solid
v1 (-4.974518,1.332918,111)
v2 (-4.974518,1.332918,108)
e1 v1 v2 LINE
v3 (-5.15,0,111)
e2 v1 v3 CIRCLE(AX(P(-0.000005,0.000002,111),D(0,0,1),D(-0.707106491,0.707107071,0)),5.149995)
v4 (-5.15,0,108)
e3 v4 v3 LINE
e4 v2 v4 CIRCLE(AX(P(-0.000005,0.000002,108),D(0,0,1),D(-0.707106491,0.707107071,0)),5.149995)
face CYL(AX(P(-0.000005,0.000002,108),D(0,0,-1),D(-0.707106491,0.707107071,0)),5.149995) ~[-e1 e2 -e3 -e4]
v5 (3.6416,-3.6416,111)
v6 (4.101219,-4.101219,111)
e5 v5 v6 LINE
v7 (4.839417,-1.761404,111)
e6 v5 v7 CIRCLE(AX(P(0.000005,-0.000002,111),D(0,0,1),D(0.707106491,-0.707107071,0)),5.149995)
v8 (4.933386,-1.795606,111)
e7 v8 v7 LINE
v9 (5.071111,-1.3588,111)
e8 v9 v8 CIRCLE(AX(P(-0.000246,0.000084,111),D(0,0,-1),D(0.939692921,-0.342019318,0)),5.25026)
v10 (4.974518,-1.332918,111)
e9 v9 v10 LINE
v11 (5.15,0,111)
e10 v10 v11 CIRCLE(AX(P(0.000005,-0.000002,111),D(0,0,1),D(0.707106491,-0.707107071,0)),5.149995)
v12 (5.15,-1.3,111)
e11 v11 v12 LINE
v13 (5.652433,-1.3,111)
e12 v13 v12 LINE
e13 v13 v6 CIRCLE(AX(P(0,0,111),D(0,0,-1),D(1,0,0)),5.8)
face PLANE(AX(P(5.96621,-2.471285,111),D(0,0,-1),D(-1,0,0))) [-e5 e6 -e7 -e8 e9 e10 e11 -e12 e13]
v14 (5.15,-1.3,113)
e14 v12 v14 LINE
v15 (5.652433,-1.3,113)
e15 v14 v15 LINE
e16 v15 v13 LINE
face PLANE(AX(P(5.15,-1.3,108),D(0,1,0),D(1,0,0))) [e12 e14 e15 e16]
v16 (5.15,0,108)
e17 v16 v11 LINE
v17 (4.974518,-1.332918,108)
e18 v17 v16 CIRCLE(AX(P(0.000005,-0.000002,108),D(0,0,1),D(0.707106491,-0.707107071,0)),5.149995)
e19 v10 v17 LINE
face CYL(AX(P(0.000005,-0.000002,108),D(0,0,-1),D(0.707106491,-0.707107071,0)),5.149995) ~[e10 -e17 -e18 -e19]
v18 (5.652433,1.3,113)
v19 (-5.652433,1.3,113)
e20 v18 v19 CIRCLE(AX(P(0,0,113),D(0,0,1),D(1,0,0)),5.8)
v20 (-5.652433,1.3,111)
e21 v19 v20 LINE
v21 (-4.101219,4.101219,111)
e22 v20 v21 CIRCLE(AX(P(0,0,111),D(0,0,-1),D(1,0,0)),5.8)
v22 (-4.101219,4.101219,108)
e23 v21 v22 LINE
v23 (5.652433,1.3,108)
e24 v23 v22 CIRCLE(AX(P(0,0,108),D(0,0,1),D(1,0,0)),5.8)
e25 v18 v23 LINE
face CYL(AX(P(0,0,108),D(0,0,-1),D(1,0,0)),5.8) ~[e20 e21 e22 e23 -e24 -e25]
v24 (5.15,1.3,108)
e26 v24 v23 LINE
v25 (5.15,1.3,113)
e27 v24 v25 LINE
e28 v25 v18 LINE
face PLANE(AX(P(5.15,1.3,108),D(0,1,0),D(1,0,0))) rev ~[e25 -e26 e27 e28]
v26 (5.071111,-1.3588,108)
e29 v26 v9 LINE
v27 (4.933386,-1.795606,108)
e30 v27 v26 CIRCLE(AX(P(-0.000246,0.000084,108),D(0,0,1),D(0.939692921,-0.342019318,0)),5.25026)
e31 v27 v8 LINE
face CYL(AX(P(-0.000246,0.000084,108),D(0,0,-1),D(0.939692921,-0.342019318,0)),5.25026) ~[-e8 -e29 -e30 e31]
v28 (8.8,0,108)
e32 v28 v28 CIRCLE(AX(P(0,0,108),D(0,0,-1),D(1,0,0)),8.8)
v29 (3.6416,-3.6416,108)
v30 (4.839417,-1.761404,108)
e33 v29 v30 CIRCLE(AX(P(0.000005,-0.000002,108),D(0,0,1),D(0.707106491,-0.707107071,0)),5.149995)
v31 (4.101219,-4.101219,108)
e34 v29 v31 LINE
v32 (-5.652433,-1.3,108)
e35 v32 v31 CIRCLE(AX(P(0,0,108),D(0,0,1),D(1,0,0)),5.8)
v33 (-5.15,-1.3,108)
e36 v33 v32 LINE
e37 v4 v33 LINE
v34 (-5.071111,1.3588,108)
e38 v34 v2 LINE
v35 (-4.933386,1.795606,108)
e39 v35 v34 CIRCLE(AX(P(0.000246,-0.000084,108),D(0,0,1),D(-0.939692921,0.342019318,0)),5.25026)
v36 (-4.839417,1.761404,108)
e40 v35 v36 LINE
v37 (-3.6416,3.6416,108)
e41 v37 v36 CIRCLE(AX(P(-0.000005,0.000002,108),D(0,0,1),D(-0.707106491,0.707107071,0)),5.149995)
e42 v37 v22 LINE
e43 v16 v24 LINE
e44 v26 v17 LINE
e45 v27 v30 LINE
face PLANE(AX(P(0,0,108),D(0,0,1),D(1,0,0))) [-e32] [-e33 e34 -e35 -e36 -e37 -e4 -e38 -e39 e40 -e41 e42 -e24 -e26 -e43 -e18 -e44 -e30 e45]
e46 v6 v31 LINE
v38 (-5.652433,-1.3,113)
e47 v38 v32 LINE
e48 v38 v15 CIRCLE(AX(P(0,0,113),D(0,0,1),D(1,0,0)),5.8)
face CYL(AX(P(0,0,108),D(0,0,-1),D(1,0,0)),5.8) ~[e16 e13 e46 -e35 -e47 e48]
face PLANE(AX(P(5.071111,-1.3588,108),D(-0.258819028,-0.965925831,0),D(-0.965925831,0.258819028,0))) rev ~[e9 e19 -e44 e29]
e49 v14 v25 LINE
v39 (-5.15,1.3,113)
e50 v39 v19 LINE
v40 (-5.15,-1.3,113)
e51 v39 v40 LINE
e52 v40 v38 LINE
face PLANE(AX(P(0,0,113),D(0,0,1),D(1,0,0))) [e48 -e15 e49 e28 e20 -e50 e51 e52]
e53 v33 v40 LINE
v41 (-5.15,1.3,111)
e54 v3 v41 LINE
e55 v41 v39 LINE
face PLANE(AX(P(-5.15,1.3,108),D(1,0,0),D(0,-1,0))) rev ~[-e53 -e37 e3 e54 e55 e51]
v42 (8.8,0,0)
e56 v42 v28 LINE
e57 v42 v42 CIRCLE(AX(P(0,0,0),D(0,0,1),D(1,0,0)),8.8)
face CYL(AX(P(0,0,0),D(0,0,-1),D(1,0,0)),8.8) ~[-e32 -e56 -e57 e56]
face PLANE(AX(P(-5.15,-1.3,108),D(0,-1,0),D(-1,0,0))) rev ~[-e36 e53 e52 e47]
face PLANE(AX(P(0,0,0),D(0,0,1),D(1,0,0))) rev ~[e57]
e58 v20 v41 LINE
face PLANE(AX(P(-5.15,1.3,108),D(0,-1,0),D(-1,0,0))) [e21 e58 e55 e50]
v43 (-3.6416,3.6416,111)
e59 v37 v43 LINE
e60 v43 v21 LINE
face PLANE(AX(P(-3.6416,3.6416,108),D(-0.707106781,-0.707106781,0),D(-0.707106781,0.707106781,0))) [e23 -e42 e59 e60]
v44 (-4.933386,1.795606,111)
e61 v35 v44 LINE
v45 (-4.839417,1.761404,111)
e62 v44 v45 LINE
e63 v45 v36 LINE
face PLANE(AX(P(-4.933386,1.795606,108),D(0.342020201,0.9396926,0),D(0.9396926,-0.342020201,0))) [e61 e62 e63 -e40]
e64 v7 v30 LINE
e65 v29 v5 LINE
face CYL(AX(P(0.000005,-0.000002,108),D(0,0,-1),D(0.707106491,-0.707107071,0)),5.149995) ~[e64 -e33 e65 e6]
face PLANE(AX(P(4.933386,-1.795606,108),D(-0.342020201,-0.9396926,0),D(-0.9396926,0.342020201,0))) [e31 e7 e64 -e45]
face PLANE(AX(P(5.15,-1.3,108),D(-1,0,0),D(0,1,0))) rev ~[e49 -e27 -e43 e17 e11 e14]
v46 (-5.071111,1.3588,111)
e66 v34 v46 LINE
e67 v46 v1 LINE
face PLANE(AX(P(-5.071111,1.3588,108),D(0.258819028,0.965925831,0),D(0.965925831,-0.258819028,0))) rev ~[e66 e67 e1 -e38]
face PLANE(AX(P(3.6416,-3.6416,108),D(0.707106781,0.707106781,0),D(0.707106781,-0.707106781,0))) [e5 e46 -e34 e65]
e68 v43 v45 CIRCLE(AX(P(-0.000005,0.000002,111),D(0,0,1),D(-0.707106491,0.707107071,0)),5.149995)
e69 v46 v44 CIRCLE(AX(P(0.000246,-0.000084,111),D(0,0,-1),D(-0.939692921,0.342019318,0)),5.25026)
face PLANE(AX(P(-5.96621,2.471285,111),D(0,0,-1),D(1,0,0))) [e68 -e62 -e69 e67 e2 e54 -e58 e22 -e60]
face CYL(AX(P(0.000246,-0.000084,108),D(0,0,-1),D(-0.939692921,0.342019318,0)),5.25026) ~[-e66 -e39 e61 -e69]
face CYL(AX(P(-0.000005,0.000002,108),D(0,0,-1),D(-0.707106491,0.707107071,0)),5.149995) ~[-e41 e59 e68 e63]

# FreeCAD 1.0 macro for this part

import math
import FreeCAD as App
import Part
import Sketcher

V = App.Vector
Q = App.Units.Quantity

doc = App.newDocument("Part")
body = doc.addObject("PartDesign::Body", "Body")

# Sketch on XY plane
sketch1 = body.newObject("Sketcher::SketchObject", "Sketch")
sketch1.AttachmentSupport = (doc.getObject("XY_Plane"), [""])
sketch1.MapMode = "FlatFace"
sketch1.addGeometry(Part.Circle(V(0, 0, 0), V(0, 0, 1), 9), False)
sketch1.addConstraint([
    Sketcher.Constraint("Coincident", 0, 3, -1, 1),
    Sketcher.Constraint("Diameter", 0, 17.6),
])
pad1 = body.newObject("PartDesign::Pad", "Pad")
pad1.Profile = sketch1
pad1.Length = 108

# Sketch on XY plane
sketch2 = body.newObject("Sketcher::SketchObject", "Sketch001")
sketch2.AttachmentSupport = (doc.getObject("XY_Plane"), [""])
sketch2.MapMode = "FlatFace"
sketch2.AttachmentOffset = App.Placement(V(0, 0, 108), App.Rotation())
sketch2.addGeometry(Part.Circle(V(0, 0, 0), V(0, 0, 1), 6), False)
sketch2.addConstraint([
    Sketcher.Constraint("Coincident", 0, 3, -1, 1),
    Sketcher.Constraint("Diameter", 0, 11.6),
])
pad2 = body.newObject("PartDesign::Pad", "Pad001")
pad2.Profile = sketch2
pad2.Length = 5

# Sketch on XY plane
sketch3 = body.newObject("Sketcher::SketchObject", "Sketch002")
sketch3.AttachmentSupport = (doc.getObject("XY_Plane"), [""])
sketch3.MapMode = "FlatFace"
sketch3.AttachmentOffset = App.Placement(V(0, 0, 108), App.Rotation())
sketch3.addGeometry([
    Part.LineSegment(V(5.2, 1.3, 0), V(5.2, -1.3, 0)),
    Part.LineSegment(V(5.2, -1.3, 0), V(10.2, -1.3, 0)),
    Part.LineSegment(V(10.2, -1.3, 0), V(10.2, 1.3, 0)),
    Part.LineSegment(V(10.2, 1.3, 0), V(5.2, 1.3, 0)),
], False)
sketch3.addConstraint([
    Sketcher.Constraint("Coincident", 0, 2, 1, 1),
    Sketcher.Constraint("Coincident", 1, 2, 2, 1),
    Sketcher.Constraint("Coincident", 2, 2, 3, 1),
    Sketcher.Constraint("Coincident", 3, 2, 0, 1),
    Sketcher.Constraint("Vertical", 0),
    Sketcher.Constraint("Horizontal", 1),
    Sketcher.Constraint("Vertical", 2),
    Sketcher.Constraint("Horizontal", 3),
    Sketcher.Constraint("DistanceX", 1, 1, 1, 2, 5.0),
    Sketcher.Constraint("DistanceY", 0, 2, 0, 1, 2.6),
    Sketcher.Constraint("DistanceY", 0, 2, -1, 1, 1.3),
    Sketcher.Constraint("DistanceX", -1, 1, 0, 2, 5.15),
])
pocket1 = body.newObject("PartDesign::Pocket", "Pocket")
pocket1.Profile = sketch3
pocket1.Length = 5
pocket1.Reversed = True
doc.recompute()

polarpattern = body.newObject("PartDesign::PolarPattern", "PolarPattern")
polarpattern.Originals = [pocket1]
polarpattern.Axis = (doc.getObject("Z_Axis"), [""])
polarpattern.Angle = 360
polarpattern.Occurrences = 2
body.Tip = polarpattern

# Sketch on XY plane
sketch4 = body.newObject("Sketcher::SketchObject", "Sketch003")
sketch4.AttachmentSupport = (doc.getObject("XY_Plane"), [""])
sketch4.MapMode = "FlatFace"
sketch4.AttachmentOffset = App.Placement(V(0, 0, 108), App.Rotation())
sketch4.addGeometry([
    Part.ArcOfCircle(Part.Circle(V(0, 0, 0), V(0, 0, 1), 5.1), math.radians(-45), math.radians(0)),
    Part.LineSegment(V(3.6, -3.6, 0), V(5.7, -5.7, 0)),
    Part.ArcOfCircle(Part.Circle(V(0, 0, 0), V(0, 0, 1), 8), math.radians(-45), math.radians(0)),
    Part.LineSegment(V(8, 0, 0), V(5.2, 0, 0)),
], False)
sketch4.addConstraint([
    Sketcher.Constraint("Coincident", 0, 1, 1, 1),
    Sketcher.Constraint("Coincident", 1, 2, 2, 1),
    Sketcher.Constraint("Coincident", 2, 2, 3, 1),
    Sketcher.Constraint("Coincident", 3, 2, 0, 2),
    Sketcher.Constraint("Horizontal", 3),
    Sketcher.Constraint("Coincident", 0, 3, -1, 1),
    Sketcher.Constraint("Coincident", 2, 3, -1, 1),
    Sketcher.Constraint("PointOnObject", 2, 2, -1),
    Sketcher.Constraint("Angle", 1, Q("-45 deg")),
    Sketcher.Constraint("DistanceX", -1, 1, 2, 2, 8.0),
    Sketcher.Constraint("DistanceX", 3, 2, 3, 1, 2.85),
    Sketcher.Constraint("DistanceX", -1, 1, 0, 1, 3.6416),
])
pocket2 = body.newObject("PartDesign::Pocket", "Pocket001")
pocket2.Profile = sketch4
pocket2.Length = 3
pocket2.Reversed = True
doc.recompute()

polarpattern2 = body.newObject("PartDesign::PolarPattern", "PolarPattern001")
polarpattern2.Originals = [pocket2]
polarpattern2.Axis = (doc.getObject("Z_Axis"), [""])
polarpattern2.Angle = 360
polarpattern2.Occurrences = 2
body.Tip = polarpattern2

# Sketch on XY plane
sketch5 = body.newObject("Sketcher::SketchObject", "Sketch004")
sketch5.AttachmentSupport = (doc.getObject("XY_Plane"), [""])
sketch5.MapMode = "FlatFace"
sketch5.AttachmentOffset = App.Placement(V(0, 0, 108), App.Rotation())
sketch5.addGeometry([
    Part.ArcOfCircle(Part.Circle(V(0, 0, 0), V(0, 0, 1), 5.25), math.radians(-20), math.radians(-15)),
    Part.LineSegment(V(5.07, -1.36, 0), V(0, 0, 0)),
    Part.LineSegment(V(0, 0, 0), V(4.93, -1.8, 0)),
], False)
sketch5.addConstraint([
    Sketcher.Constraint("Coincident", 0, 2, 1, 1),
    Sketcher.Constraint("Coincident", 1, 2, 2, 1),
    Sketcher.Constraint("Coincident", 2, 2, 0, 1),
    Sketcher.Constraint("Coincident", 1, 2, -1, 1),
    Sketcher.Constraint("Equal", 1, 2),
    Sketcher.Constraint("Angle", 1, Q("165.000001 deg")),
    Sketcher.Constraint("Angle", 2, Q("-20.000004 deg")),
    Sketcher.Constraint("Distance", 1, 5.25),
    Sketcher.Constraint("Radius", 0, 5.25026),
])
pad3 = body.newObject("PartDesign::Pad", "Pad002")
pad3.Profile = sketch5
pad3.Length = 5
doc.recompute()

polarpattern3 = body.newObject("PartDesign::PolarPattern", "PolarPattern002")
polarpattern3.Originals = [pad3]
polarpattern3.Axis = (doc.getObject("Z_Axis"), [""])
polarpattern3.Angle = 360
polarpattern3.Occurrences = 2
body.Tip = polarpattern3

doc.recompute()
